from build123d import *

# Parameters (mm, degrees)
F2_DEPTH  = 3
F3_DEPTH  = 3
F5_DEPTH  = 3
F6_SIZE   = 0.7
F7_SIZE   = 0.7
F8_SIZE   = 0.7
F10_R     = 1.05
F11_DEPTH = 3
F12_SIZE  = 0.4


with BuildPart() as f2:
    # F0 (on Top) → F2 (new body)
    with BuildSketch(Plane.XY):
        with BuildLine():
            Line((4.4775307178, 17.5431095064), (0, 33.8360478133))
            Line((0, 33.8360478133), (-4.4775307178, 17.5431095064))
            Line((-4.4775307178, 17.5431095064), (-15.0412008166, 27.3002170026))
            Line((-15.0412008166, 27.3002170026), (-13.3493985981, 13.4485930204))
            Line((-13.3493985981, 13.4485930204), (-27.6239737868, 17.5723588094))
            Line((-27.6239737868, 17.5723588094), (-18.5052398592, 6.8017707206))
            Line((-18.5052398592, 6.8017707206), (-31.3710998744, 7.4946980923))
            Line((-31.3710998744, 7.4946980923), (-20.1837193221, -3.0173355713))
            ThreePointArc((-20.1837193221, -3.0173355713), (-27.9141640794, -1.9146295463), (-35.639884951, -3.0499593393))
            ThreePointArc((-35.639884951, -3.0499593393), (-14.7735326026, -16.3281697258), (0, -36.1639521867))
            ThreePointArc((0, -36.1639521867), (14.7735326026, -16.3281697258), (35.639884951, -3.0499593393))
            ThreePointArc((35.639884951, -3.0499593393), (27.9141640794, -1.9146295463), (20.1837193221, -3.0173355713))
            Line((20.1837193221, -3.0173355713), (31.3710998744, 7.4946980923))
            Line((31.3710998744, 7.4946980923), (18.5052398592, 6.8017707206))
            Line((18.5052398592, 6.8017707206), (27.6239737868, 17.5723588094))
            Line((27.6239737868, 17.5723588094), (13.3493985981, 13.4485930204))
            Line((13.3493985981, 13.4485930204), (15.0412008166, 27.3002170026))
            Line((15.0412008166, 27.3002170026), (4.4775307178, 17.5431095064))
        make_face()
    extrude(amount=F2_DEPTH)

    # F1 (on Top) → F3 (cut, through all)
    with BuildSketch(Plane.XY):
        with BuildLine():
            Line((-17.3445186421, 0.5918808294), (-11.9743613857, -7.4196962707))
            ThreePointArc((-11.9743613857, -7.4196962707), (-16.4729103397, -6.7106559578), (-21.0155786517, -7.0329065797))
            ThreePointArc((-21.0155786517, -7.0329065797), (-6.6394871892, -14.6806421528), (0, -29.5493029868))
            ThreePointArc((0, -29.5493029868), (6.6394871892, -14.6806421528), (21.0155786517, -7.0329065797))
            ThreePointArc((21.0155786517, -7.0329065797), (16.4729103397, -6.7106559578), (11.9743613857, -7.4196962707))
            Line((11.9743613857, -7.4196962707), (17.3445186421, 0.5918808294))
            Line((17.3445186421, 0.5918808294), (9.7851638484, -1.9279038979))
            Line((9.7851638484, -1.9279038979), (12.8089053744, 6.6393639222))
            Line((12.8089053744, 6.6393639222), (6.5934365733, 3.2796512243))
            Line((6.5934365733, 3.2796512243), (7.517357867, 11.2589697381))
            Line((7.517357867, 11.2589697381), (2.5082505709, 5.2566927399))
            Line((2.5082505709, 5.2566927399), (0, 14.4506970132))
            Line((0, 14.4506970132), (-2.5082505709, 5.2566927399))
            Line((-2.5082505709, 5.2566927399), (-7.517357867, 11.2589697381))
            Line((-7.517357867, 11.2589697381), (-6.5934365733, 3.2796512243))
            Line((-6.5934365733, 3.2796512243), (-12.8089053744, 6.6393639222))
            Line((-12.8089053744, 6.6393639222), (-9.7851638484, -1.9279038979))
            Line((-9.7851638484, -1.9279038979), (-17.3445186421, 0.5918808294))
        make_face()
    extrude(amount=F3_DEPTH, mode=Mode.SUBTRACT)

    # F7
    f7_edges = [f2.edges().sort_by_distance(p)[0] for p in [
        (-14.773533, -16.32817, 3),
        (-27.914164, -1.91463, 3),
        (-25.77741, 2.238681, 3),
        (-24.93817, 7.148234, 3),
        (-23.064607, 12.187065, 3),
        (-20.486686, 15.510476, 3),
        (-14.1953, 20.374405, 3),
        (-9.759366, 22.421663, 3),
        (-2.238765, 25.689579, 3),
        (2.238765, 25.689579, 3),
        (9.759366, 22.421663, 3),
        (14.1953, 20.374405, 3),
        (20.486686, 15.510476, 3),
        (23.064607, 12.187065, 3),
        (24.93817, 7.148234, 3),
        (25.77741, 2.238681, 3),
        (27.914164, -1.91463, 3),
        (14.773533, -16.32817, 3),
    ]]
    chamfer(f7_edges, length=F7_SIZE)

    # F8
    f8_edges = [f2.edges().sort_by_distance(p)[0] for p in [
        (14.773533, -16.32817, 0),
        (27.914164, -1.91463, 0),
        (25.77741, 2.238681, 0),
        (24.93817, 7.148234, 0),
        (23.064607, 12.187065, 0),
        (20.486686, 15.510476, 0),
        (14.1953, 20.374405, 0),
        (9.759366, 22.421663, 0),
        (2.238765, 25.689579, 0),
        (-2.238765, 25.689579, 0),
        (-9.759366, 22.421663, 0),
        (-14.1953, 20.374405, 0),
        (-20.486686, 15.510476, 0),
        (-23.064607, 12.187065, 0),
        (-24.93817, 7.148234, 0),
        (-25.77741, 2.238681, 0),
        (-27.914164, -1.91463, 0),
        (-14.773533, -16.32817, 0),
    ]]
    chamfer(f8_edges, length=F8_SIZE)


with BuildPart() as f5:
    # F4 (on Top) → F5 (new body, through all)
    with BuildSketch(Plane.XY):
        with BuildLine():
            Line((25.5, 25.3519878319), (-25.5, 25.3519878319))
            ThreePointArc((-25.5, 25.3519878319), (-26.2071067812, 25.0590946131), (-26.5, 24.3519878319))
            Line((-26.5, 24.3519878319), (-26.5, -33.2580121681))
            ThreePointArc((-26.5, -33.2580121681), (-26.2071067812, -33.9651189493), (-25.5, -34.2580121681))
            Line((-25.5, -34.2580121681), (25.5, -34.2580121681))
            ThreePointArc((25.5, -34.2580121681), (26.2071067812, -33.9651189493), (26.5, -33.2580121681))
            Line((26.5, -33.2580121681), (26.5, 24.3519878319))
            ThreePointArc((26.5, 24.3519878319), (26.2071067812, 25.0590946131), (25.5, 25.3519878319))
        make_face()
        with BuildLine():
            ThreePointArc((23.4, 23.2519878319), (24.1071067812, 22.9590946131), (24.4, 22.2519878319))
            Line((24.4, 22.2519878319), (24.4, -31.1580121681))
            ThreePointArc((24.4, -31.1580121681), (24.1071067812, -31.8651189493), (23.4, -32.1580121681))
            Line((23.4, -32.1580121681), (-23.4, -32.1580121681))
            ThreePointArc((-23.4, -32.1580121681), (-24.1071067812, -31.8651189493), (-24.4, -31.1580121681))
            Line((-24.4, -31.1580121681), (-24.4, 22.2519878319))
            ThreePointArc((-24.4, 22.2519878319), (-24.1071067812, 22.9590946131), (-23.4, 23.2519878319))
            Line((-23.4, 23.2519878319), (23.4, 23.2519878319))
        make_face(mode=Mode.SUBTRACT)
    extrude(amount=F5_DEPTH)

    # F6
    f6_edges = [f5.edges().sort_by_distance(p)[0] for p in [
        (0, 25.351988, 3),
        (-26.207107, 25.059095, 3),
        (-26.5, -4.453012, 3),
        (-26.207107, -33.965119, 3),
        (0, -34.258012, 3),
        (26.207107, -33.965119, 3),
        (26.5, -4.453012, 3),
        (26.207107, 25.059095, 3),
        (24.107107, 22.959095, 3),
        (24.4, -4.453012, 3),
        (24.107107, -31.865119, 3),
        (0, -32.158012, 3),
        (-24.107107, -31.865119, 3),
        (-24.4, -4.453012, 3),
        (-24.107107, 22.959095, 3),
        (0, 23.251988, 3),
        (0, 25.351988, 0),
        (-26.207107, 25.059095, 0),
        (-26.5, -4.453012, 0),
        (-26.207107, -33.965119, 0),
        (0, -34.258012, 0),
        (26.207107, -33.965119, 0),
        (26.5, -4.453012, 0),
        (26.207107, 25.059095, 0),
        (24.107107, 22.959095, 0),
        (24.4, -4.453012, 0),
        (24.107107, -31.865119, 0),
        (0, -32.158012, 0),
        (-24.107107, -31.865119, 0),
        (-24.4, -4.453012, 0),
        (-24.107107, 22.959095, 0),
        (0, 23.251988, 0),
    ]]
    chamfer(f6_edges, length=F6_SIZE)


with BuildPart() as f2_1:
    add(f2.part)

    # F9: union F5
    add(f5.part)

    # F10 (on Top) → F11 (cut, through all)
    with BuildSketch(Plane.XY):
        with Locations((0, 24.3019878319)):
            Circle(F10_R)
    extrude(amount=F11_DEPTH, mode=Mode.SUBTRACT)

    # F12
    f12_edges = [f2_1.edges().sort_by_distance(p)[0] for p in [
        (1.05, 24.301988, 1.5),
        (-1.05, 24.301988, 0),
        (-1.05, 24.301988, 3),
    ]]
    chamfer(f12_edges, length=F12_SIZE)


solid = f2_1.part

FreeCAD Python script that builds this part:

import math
import FreeCAD as App
import Part
import Sketcher

V = App.Vector
Q = App.Units.Quantity


def edges_at(feature, points):
    """Names of the edges that pass closest to the given points."""
    edges = feature.Shape.Edges
    near = lambda p: min(range(len(edges)), key=lambda i: edges[i].distToShape(Part.Vertex(*p))[0])
    return sorted({f"Edge{near(p) + 1}" for p in points})

doc = App.newDocument("Part")
body = doc.addObject("PartDesign::Body", "Body")

# Sketch on XY plane
sketch1 = body.newObject("Sketcher::SketchObject", "Sketch")
sketch1.AttachmentSupport = (doc.getObject("XY_Plane"), [""])
sketch1.MapMode = "FlatFace"
sketch1.addGeometry([
    Part.LineSegment(V(4.477531, 17.54311, 0), V(0, 33.836048, 0)),  # 0
    Part.LineSegment(V(0, 33.836048, 0), V(-4.477531, 17.54311, 0)),  # 1
    Part.LineSegment(V(-4.477531, 17.54311, 0), V(-15.041201, 27.300217, 0)),  # 2
    Part.LineSegment(V(-15.041201, 27.300217, 0), V(-13.349399, 13.448593, 0)),  # 3
    Part.LineSegment(V(-13.349399, 13.448593, 0), V(-27.623974, 17.572359, 0)),  # 4
    Part.LineSegment(V(-27.623974, 17.572359, 0), V(-18.50524, 6.801771, 0)),  # 5
    Part.LineSegment(V(-18.50524, 6.801771, 0), V(-31.3711, 7.494698, 0)),  # 6
    Part.LineSegment(V(-31.3711, 7.494698, 0), V(-20.183719, -3.017336, 0)),  # 7
    Part.ArcOfCircle(Part.Circle(V(-27.856657, -29.15971, 0), V(0, 0, 1), 27.245141), math.radians(73.642731), math.radians(106.59914)),  # 8
    Part.ArcOfCircle(Part.Circle(V(-61.28972, -66.392551, 0), V(0, 0, 1), 68.338846), math.radians(26.252898), math.radians(67.955095)),  # 9
    Part.ArcOfCircle(Part.Circle(V(61.28972, -66.392551, 0), V(0, 0, 1), 68.338846), math.radians(112.044905), math.radians(153.747102)),  # 10
    Part.ArcOfCircle(Part.Circle(V(27.856657, -29.15971, 0), V(0, 0, 1), 27.245141), math.radians(73.40086), math.radians(106.357269)),  # 11
    Part.LineSegment(V(20.183719, -3.017336, 0), V(31.3711, 7.494698, 0)),  # 12
    Part.LineSegment(V(31.3711, 7.494698, 0), V(18.50524, 6.801771, 0)),  # 13
    Part.LineSegment(V(18.50524, 6.801771, 0), V(27.623974, 17.572359, 0)),  # 14
    Part.LineSegment(V(27.623974, 17.572359, 0), V(13.349399, 13.448593, 0)),  # 15
    Part.LineSegment(V(13.349399, 13.448593, 0), V(15.041201, 27.300217, 0)),  # 16
    Part.LineSegment(V(15.041201, 27.300217, 0), V(4.477531, 17.54311, 0)),  # 17
], False)
sketch1.addConstraint([
    Sketcher.Constraint("Coincident", 0, 2, 1, 1),
    Sketcher.Constraint("Coincident", 1, 2, 2, 1),
    Sketcher.Constraint("Coincident", 2, 2, 3, 1),
    Sketcher.Constraint("Coincident", 3, 2, 4, 1),
    Sketcher.Constraint("Coincident", 4, 2, 5, 1),
    Sketcher.Constraint("Coincident", 5, 2, 6, 1),
    Sketcher.Constraint("Coincident", 6, 2, 7, 1),
    Sketcher.Constraint("Coincident", 7, 2, 8, 1),
    Sketcher.Constraint("Coincident", 8, 2, 9, 2),
    Sketcher.Constraint("Coincident", 9, 1, 10, 2),
    Sketcher.Constraint("Coincident", 10, 1, 11, 1),
    Sketcher.Constraint("Coincident", 11, 2, 12, 1),
    Sketcher.Constraint("Coincident", 12, 2, 13, 1),
    Sketcher.Constraint("Coincident", 13, 2, 14, 1),
    Sketcher.Constraint("Coincident", 14, 2, 15, 1),
    Sketcher.Constraint("Coincident", 15, 2, 16, 1),
    Sketcher.Constraint("Coincident", 16, 2, 17, 1),
    Sketcher.Constraint("Coincident", 17, 2, 0, 1),
    Sketcher.Constraint("Equal", 9, 10),
    Sketcher.Constraint("Equal", 8, 11),
    Sketcher.Constraint("Symmetric", 9, 3, 10, 3, -2),
    Sketcher.Constraint("Symmetric", 8, 3, 11, 3, -2),
    Sketcher.Constraint("Symmetric", 6, 2, 12, 2, -2),
    Sketcher.Constraint("Symmetric", 5, 2, 13, 2, -2),
    Sketcher.Constraint("Symmetric", 4, 2, 14, 2, -2),
    Sketcher.Constraint("Symmetric", 3, 2, 15, 2, -2),
    Sketcher.Constraint("Symmetric", 2, 2, 16, 2, -2),
    Sketcher.Constraint("Symmetric", 1, 2, 17, 2, -2),
    Sketcher.Constraint("PointOnObject", 0, 2, -2),
    Sketcher.Constraint("Horizontal", 7, 2, 11, 2),
    Sketcher.Constraint("Radius", 8, Q("27.245141 mm")),
    Sketcher.Constraint("Radius", 9, Q("68.338846 mm")),
    Sketcher.Constraint("DistanceX", 2, 2, -1, 1, Q("15.041201 mm")),
    Sketcher.Constraint("DistanceX", 3, 2, -1, 1, Q("13.349399 mm")),
    Sketcher.Constraint("DistanceX", 6, 2, -1, 1, Q("31.3711 mm")),
    Sketcher.Constraint("DistanceY", -1, 1, 6, 2, Q("7.494698 mm")),
    Sketcher.Constraint("DistanceY", 9, 3, 0, 2, Q("100.228599 mm")),
    Sketcher.Constraint("DistanceY", 8, 3, -1, 1, Q("29.15971 mm")),
    Sketcher.Constraint("DistanceX", 9, 3, -1, 1, Q("61.28972 mm")),
    Sketcher.Constraint("DistanceY", 9, 3, -1, 1, Q("66.392551 mm")),
    Sketcher.Constraint("DistanceX", 1, 2, -1, 1, Q("4.477531 mm")),
    Sketcher.Constraint("DistanceY", -1, 1, 1, 2, Q("17.54311 mm")),
    Sketcher.Constraint("DistanceY", -1, 1, 4, 2, Q("17.572359 mm")),
    Sketcher.Constraint("DistanceX", 5, 2, -1, 1, Q("18.50524 mm")),
    Sketcher.Constraint("DistanceY", -1, 1, 5, 2, Q("6.801771 mm")),
    Sketcher.Constraint("DistanceX", 7, 2, -1, 1, Q("20.183719 mm")),
    Sketcher.Constraint("DistanceY", 8, 2, -1, 1, Q("3.049959 mm")),
    Sketcher.Constraint("DistanceY", 2, 2, 0, 2, Q("6.535831 mm")),
    Sketcher.Constraint("DistanceY", 7, 2, 3, 2, Q("16.465929 mm")),
    Sketcher.Constraint("DistanceX", 8, 2, 4, 2, Q("8.015911 mm")),
])
pad1 = body.newObject("PartDesign::Pad", "Pad")
pad1.Profile = sketch1
pad1.Length = 3

# Sketch on XY plane
sketch2 = body.newObject("Sketcher::SketchObject", "Sketch001")
sketch2.AttachmentSupport = (doc.getObject("XY_Plane"), [""])
sketch2.MapMode = "FlatFace"
sketch2.addGeometry([
    Part.LineSegment(V(-17.344519, 0.591881, 0), V(-11.974361, -7.419696, 0)),  # 0
    Part.ArcOfCircle(Part.Circle(V(-17.331676, -26.784325, 0), V(0, 0, 1), 20.09203), math.radians(74.535646), math.radians(100.565033)),  # 1
    Part.ArcOfCircle(Part.Circle(V(-24.956411, -31.776661, 0), V(0, 0, 1), 25.055609), math.radians(5.100132), math.radians(80.950749)),  # 2
    Part.ArcOfCircle(Part.Circle(V(24.956411, -31.776661, 0), V(0, 0, 1), 25.055609), math.radians(99.049251), math.radians(174.899868)),  # 3
    Part.ArcOfCircle(Part.Circle(V(17.331676, -26.784325, 0), V(0, 0, 1), 20.09203), math.radians(79.434967), math.radians(105.464354)),  # 4
    Part.LineSegment(V(11.974361, -7.419696, 0), V(17.344519, 0.591881, 0)),  # 5
    Part.LineSegment(V(17.344519, 0.591881, 0), V(9.785164, -1.927904, 0)),  # 6
    Part.LineSegment(V(9.785164, -1.927904, 0), V(12.808905, 6.639364, 0)),  # 7
    Part.LineSegment(V(12.808905, 6.639364, 0), V(6.593437, 3.279651, 0)),  # 8
    Part.LineSegment(V(6.593437, 3.279651, 0), V(7.517358, 11.25897, 0)),  # 9
    Part.LineSegment(V(7.517358, 11.25897, 0), V(2.508251, 5.256693, 0)),  # 10
    Part.LineSegment(V(2.508251, 5.256693, 0), V(0, 14.450697, 0)),  # 11
    Part.LineSegment(V(0, 14.450697, 0), V(-2.508251, 5.256693, 0)),  # 12
    Part.LineSegment(V(-2.508251, 5.256693, 0), V(-7.517358, 11.25897, 0)),  # 13
    Part.LineSegment(V(-7.517358, 11.25897, 0), V(-6.593437, 3.279651, 0)),  # 14
    Part.LineSegment(V(-6.593437, 3.279651, 0), V(-12.808905, 6.639364, 0)),  # 15
    Part.LineSegment(V(-12.808905, 6.639364, 0), V(-9.785164, -1.927904, 0)),  # 16
    Part.LineSegment(V(-9.785164, -1.927904, 0), V(-17.344519, 0.591881, 0)),  # 17
], False)
sketch2.addConstraint([
    Sketcher.Constraint("Coincident", 0, 2, 1, 1),
    Sketcher.Constraint("Coincident", 1, 2, 2, 2),
    Sketcher.Constraint("Coincident", 2, 1, 3, 2),
    Sketcher.Constraint("Coincident", 3, 1, 4, 1),
    Sketcher.Constraint("Coincident", 4, 2, 5, 1),
    Sketcher.Constraint("Coincident", 5, 2, 6, 1),
    Sketcher.Constraint("Coincident", 6, 2, 7, 1),
    Sketcher.Constraint("Coincident", 7, 2, 8, 1),
    Sketcher.Constraint("Coincident", 8, 2, 9, 1),
    Sketcher.Constraint("Coincident", 9, 2, 10, 1),
    Sketcher.Constraint("Coincident", 10, 2, 11, 1),
    Sketcher.Constraint("Coincident", 11, 2, 12, 1),
    Sketcher.Constraint("Coincident", 12, 2, 13, 1),
    Sketcher.Constraint("Coincident", 13, 2, 14, 1),
    Sketcher.Constraint("Coincident", 14, 2, 15, 1),
    Sketcher.Constraint("Coincident", 15, 2, 16, 1),
    Sketcher.Constraint("Coincident", 16, 2, 17, 1),
    Sketcher.Constraint("Coincident", 17, 2, 0, 1),
    Sketcher.Constraint("Equal", 2, 3),
    Sketcher.Constraint("Equal", 1, 4),
    Sketcher.Constraint("Symmetric", 2, 3, 3, 3, -2),
    Sketcher.Constraint("Symmetric", 1, 3, 4, 3, -2),
    Sketcher.Constraint("Symmetric", 10, 2, 12, 2, -2),
    Sketcher.Constraint("Symmetric", 9, 2, 13, 2, -2),
    Sketcher.Constraint("Symmetric", 8, 2, 14, 2, -2),
    Sketcher.Constraint("Symmetric", 7, 2, 15, 2, -2),
    Sketcher.Constraint("Symmetric", 6, 2, 16, 2, -2),
    Sketcher.Constraint("Symmetric", 5, 2, 17, 2, -2),
    Sketcher.Constraint("PointOnObject", 11, 2, -2),
    Sketcher.Constraint("Horizontal", 0, 2, 4, 2),
    Sketcher.Constraint("Radius", 1, Q("20.09203 mm")),
    Sketcher.Constraint("Radius", 2, Q("25.055609 mm")),
    Sketcher.Constraint("DistanceY", 6, 2, 11, 2, Q("16.378601 mm")),
    Sketcher.Constraint("DistanceX", 12, 2, 10, 2, Q("5.016501 mm")),
    Sketcher.Constraint("Distance", 6, Q("7.96826 mm")),
    Sketcher.Constraint("Distance", 8, Q("7.065389 mm")),
    Sketcher.Constraint("Distance", 9, Q("8.032631 mm")),
    Sketcher.Constraint("Distance", 10, Q("7.817831 mm")),
    Sketcher.Constraint("DistanceX", 2, 3, -1, 1, Q("24.956411 mm")),
    Sketcher.Constraint("DistanceY", 2, 3, -1, 1, Q("31.776661 mm")),
    Sketcher.Constraint("DistanceX", 0, 2, -1, 1, Q("11.974361 mm")),
    Sketcher.Constraint("DistanceX", 1, 2, -1, 1, Q("21.015579 mm")),
    Sketcher.Constraint("DistanceX", -1, 1, 5, 2, Q("17.344519 mm")),
    Sketcher.Constraint("DistanceY", -1, 1, 5, 2, Q("0.591881 mm")),
    Sketcher.Constraint("DistanceY", -1, 1, 8, 2, Q("3.279651 mm")),
    Sketcher.Constraint("DistanceY", -1, 1, 9, 2, Q("11.25897 mm")),
    Sketcher.Constraint("DistanceY", 1, 3, 0, 2, Q("19.364628 mm")),
    Sketcher.Constraint("DistanceY", 4, 3, 6, 2, Q("24.856421 mm")),
    Sketcher.Constraint("DistanceX", 6, 2, 7, 2, Q("3.023742 mm")),
    Sketcher.Constraint("DistanceY", 4, 2, 7, 2, Q("14.05906 mm")),
])
pocket1 = body.newObject("PartDesign::Pocket", "Pocket")
pocket1.Profile = sketch2
pocket1.Type = "ThroughAll"
pocket1.Reversed = True
doc.recompute()

chamfer = body.newObject("PartDesign::Chamfer", "Chamfer")
chamfer.Base = (pocket1, edges_at(pocket1, [
    (-14.774, -16.328, 3),
    (-27.914, -1.915, 3),
    (-25.777, 2.239, 3),
    (-24.938, 7.148, 3),
    (-23.065, 12.187, 3),
    (-20.487, 15.51, 3),
    (-14.195, 20.374, 3),
    (-9.759, 22.422, 3),
    (-2.239, 25.69, 3),
    (2.239, 25.69, 3),
    (9.759, 22.422, 3),
    (14.195, 20.374, 3),
    (20.487, 15.51, 3),
    (23.065, 12.187, 3),
    (24.938, 7.148, 3),
    (25.777, 2.239, 3),
    (27.914, -1.915, 3),
    (14.774, -16.328, 3),
]))
chamfer.Size = 0.7
doc.recompute()

chamfer2 = body.newObject("PartDesign::Chamfer", "Chamfer001")
chamfer2.Base = (chamfer, edges_at(chamfer, [
    (14.774, -16.328, 0),
    (27.914, -1.915, 0),
    (25.777, 2.239, 0),
    (24.938, 7.148, 0),
    (23.065, 12.187, 0),
    (20.487, 15.51, 0),
    (14.195, 20.374, 0),
    (9.759, 22.422, 0),
    (2.239, 25.69, 0),
    (-2.239, 25.69, 0),
    (-9.759, 22.422, 0),
    (-14.195, 20.374, 0),
    (-20.487, 15.51, 0),
    (-23.065, 12.187, 0),
    (-24.938, 7.148, 0),
    (-25.777, 2.239, 0),
    (-27.914, -1.915, 0),
    (-14.774, -16.328, 0),
]))
chamfer2.Size = 0.7
body2 = doc.addObject("PartDesign::Body", "Body001")

# Sketch on XY plane
sketch3 = body2.newObject("Sketcher::SketchObject", "Sketch002")
sketch3.AttachmentSupport = (doc.getObject("XY_Plane001"), [""])
sketch3.MapMode = "FlatFace"
sketch3.addGeometry([
    Part.LineSegment(V(25.5, 25.351988, 0), V(-25.5, 25.351988, 0)),  # 0
    Part.ArcOfCircle(Part.Circle(V(-25.5, 24.351988, 0), V(0, 0, 1), 1), math.radians(90), math.radians(180)),  # 1
    Part.LineSegment(V(-26.5, 24.351988, 0), V(-26.5, -33.258012, 0)),  # 2
    Part.ArcOfCircle(Part.Circle(V(-25.5, -33.258012, 0), V(0, 0, 1), 1), math.radians(180), math.radians(270)),  # 3
    Part.LineSegment(V(-25.5, -34.258012, 0), V(25.5, -34.258012, 0)),  # 4
    Part.ArcOfCircle(Part.Circle(V(25.5, -33.258012, 0), V(0, 0, 1), 1), math.radians(-90), math.radians(0)),  # 5
    Part.LineSegment(V(26.5, -33.258012, 0), V(26.5, 24.351988, 0)),  # 6
    Part.ArcOfCircle(Part.Circle(V(25.5, 24.351988, 0), V(0, 0, 1), 1), math.radians(0), math.radians(90)),  # 7
    Part.LineSegment(V(-23.4, 23.251988, 0), V(23.4, 23.251988, 0)),  # 8
    Part.ArcOfCircle(Part.Circle(V(23.4, 22.251988, 0), V(0, 0, 1), 1), math.radians(0), math.radians(90)),  # 9
    Part.LineSegment(V(24.4, 22.251988, 0), V(24.4, -31.158012, 0)),  # 10
    Part.ArcOfCircle(Part.Circle(V(23.4, -31.158012, 0), V(0, 0, 1), 1), math.radians(-90), math.radians(0)),  # 11
    Part.LineSegment(V(23.4, -32.158012, 0), V(-23.4, -32.158012, 0)),  # 12
    Part.ArcOfCircle(Part.Circle(V(-23.4, -31.158012, 0), V(0, 0, 1), 1), math.radians(180), math.radians(270)),  # 13
    Part.LineSegment(V(-24.4, -31.158012, 0), V(-24.4, 22.251988, 0)),  # 14
    Part.ArcOfCircle(Part.Circle(V(-23.4, 22.251988, 0), V(0, 0, 1), 1), math.radians(90), math.radians(180)),  # 15
], False)
sketch3.addConstraint([
    Sketcher.Constraint("Tangent", 0, 2, 1, 1),
    Sketcher.Constraint("Tangent", 1, 2, 2, 1),
    Sketcher.Constraint("Tangent", 2, 2, 3, 1),
    Sketcher.Constraint("Tangent", 3, 2, 4, 1),
    Sketcher.Constraint("Tangent", 4, 2, 5, 1),
    Sketcher.Constraint("Tangent", 5, 2, 6, 1),
    Sketcher.Constraint("Tangent", 6, 2, 7, 1),
    Sketcher.Constraint("Tangent", 7, 2, 0, 1),
    Sketcher.Constraint("Tangent", 8, 2, 9, 2),
    Sketcher.Constraint("Tangent", 9, 1, 10, 1),
    Sketcher.Constraint("Tangent", 10, 2, 11, 2),
    Sketcher.Constraint("Tangent", 11, 1, 12, 1),
    Sketcher.Constraint("Tangent", 12, 2, 13, 2),
    Sketcher.Constraint("Tangent", 13, 1, 14, 1),
    Sketcher.Constraint("Tangent", 14, 2, 15, 2),
    Sketcher.Constraint("Tangent", 15, 1, 8, 1),
    Sketcher.Constraint("Horizontal", 0),
    Sketcher.Constraint("Vertical", 2),
    Sketcher.Constraint("Horizontal", 4),
    Sketcher.Constraint("Vertical", 6),
    Sketcher.Constraint("Horizontal", 8),
    Sketcher.Constraint("Vertical", 10),
    Sketcher.Constraint("Horizontal", 12),
    Sketcher.Constraint("Vertical", 14),
    Sketcher.Constraint("Equal", 1, 3),
    Sketcher.Constraint("Equal", 3, 5),
    Sketcher.Constraint("Equal", 5, 7),
    Sketcher.Constraint("Equal", 7, 9),
    Sketcher.Constraint("Equal", 9, 11),
    Sketcher.Constraint("Equal", 11, 13),
    Sketcher.Constraint("Equal", 13, 15),
    Sketcher.Constraint("Radius", 1, Q("1 mm")),
    Sketcher.Constraint("DistanceX", 0, 2, 0, 1, Q("51 mm")),
    Sketcher.Constraint("DistanceX", 8, 1, 8, 2, Q("46.8 mm")),
    Sketcher.Constraint("DistanceY", 2, 2, 2, 1, Q("57.61 mm")),
    Sketcher.Constraint("DistanceY", 10, 2, 10, 1, Q("53.41 mm")),
    Sketcher.Constraint("DistanceX", 1, 3, -1, 1, Q("25.5 mm")),
    Sketcher.Constraint("DistanceX", -1, 1, 9, 3, Q("23.4 mm")),
    Sketcher.Constraint("DistanceY", 9, 3, 7, 3, Q("2.1 mm")),
    Sketcher.Constraint("DistanceY", -1, 1, 1, 3, Q("24.351988 mm")),
])
pad2 = body2.newObject("PartDesign::Pad", "Pad001")
pad2.Profile = sketch3
pad2.Length = 3
doc.recompute()

chamfer3 = body2.newObject("PartDesign::Chamfer", "Chamfer002")
chamfer3.Base = (pad2, edges_at(pad2, [
    (0, 25.352, 3),
    (-26.207, 25.059, 3),
    (-26.5, -4.453, 3),
    (-26.207, -33.965, 3),
    (0, -34.258, 3),
    (26.207, -33.965, 3),
    (26.5, -4.453, 3),
    (26.207, 25.059, 3),
    (24.107, 22.959, 3),
    (24.4, -4.453, 3),
    (24.107, -31.865, 3),
    (0, -32.158, 3),
    (-24.107, -31.865, 3),
    (-24.4, -4.453, 3),
    (-24.107, 22.959, 3),
    (0, 23.252, 3),
    (0, 25.352, 0),
    (-26.207, 25.059, 0),
    (-26.5, -4.453, 0),
    (-26.207, -33.965, 0),
    (0, -34.258, 0),
    (26.207, -33.965, 0),
    (26.5, -4.453, 0),
    (26.207, 25.059, 0),
    (24.107, 22.959, 0),
    (24.4, -4.453, 0),
    (24.107, -31.865, 0),
    (0, -32.158, 0),
    (-24.107, -31.865, 0),
    (-24.4, -4.453, 0),
    (-24.107, 22.959, 0),
    (0, 23.252, 0),
]))
chamfer3.Size = 0.7
doc.recompute()

boolean = body.newObject("PartDesign::Boolean", "Boolean")
boolean.Type = "Fuse"
boolean.addObjects([body2])

# Sketch on XY plane
sketch4 = body.newObject("Sketcher::SketchObject", "Sketch003")
sketch4.AttachmentSupport = (doc.getObject("XY_Plane"), [""])
sketch4.MapMode = "FlatFace"
sketch4.addGeometry(Part.Circle(V(0, 24.301988, 0), V(0, 0, 1), 1.05), False)
sketch4.addConstraint([
    Sketcher.Constraint("PointOnObject", 0, 3, -2),
    Sketcher.Constraint("Diameter", 0, Q("2.1 mm")),
    Sketcher.Constraint("DistanceY", -1, 1, 0, 3, Q("24.301988 mm")),
])
pocket2 = body.newObject("PartDesign::Pocket", "Pocket001")
pocket2.Profile = sketch4
pocket2.Type = "ThroughAll"
pocket2.Reversed = True
doc.recompute()

chamfer4 = body.newObject("PartDesign::Chamfer", "Chamfer003")
chamfer4.Base = (pocket2, edges_at(pocket2, [(1.05, 24.302, 1.5), (-1.05, 24.302, 0), (-1.05, 24.302, 3)]))
chamfer4.Size = 0.4

doc.recompute()
